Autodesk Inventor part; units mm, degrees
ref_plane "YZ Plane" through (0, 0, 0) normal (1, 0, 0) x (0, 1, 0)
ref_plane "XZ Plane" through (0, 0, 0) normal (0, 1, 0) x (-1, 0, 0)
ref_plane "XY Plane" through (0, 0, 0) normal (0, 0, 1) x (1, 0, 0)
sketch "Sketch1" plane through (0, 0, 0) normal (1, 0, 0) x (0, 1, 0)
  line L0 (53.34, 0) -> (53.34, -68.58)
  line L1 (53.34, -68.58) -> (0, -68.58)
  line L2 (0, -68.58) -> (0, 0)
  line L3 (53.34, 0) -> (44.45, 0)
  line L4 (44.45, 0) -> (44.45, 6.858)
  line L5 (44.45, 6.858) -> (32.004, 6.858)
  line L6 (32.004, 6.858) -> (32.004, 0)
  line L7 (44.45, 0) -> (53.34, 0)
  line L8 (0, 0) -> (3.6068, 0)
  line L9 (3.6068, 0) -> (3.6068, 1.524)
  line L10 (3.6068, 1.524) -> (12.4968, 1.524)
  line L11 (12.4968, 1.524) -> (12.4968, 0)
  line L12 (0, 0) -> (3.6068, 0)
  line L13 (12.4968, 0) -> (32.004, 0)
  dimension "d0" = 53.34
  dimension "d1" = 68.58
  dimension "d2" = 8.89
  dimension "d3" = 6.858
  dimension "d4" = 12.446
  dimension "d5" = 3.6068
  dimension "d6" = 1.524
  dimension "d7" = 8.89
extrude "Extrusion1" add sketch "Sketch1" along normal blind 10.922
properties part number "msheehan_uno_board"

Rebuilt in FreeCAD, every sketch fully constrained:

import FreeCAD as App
import Part
import Sketcher
Q = App.Units.Quantity

doc = App.newDocument("Part")
body = doc.addObject("PartDesign::Body", "Body")

# Sketch on YZ plane
sketch1 = body.newObject("Sketcher::SketchObject", "Sketch")
sketch1.AttachmentSupport = (doc.getObject("YZ_Plane"), [""])
sketch1.MapMode = "FlatFace"
sketch1.addGeometry([
    Part.LineSegment(App.Vector(53.3, -68.6, 0), App.Vector(53.3, 0, 0)),  # 0
    Part.LineSegment(App.Vector(53.3, 0, 0), App.Vector(44.5, 0, 0)),  # 1
    Part.LineSegment(App.Vector(44.5, 0, 0), App.Vector(44.5, 6.9, 0)),  # 2
    Part.LineSegment(App.Vector(44.5, 6.9, 0), App.Vector(32, 6.9, 0)),  # 3
    Part.LineSegment(App.Vector(32, 6.9, 0), App.Vector(32, 0, 0)),  # 4
    Part.LineSegment(App.Vector(32, 0, 0), App.Vector(12.5, 0, 0)),  # 5
    Part.LineSegment(App.Vector(12.5, 0, 0), App.Vector(12.5, 1.5, 0)),  # 6
    Part.LineSegment(App.Vector(12.5, 1.5, 0), App.Vector(3.6, 1.5, 0)),  # 7
    Part.LineSegment(App.Vector(3.6, 1.5, 0), App.Vector(3.6, 0, 0)),  # 8
    Part.LineSegment(App.Vector(3.6, 0, 0), App.Vector(0, 0, 0)),  # 9
    Part.LineSegment(App.Vector(0, 0, 0), App.Vector(0, -68.6, 0)),  # 10
    Part.LineSegment(App.Vector(0, -68.6, 0), App.Vector(53.3, -68.6, 0)),  # 11
], False)
sketch1.addConstraint([
    Sketcher.Constraint("Coincident", 0, 2, 1, 1),
    Sketcher.Constraint("Coincident", 1, 2, 2, 1),
    Sketcher.Constraint("Coincident", 2, 2, 3, 1),
    Sketcher.Constraint("Coincident", 3, 2, 4, 1),
    Sketcher.Constraint("Coincident", 4, 2, 5, 1),
    Sketcher.Constraint("Coincident", 5, 2, 6, 1),
    Sketcher.Constraint("Coincident", 6, 2, 7, 1),
    Sketcher.Constraint("Coincident", 7, 2, 8, 1),
    Sketcher.Constraint("Coincident", 8, 2, 9, 1),
    Sketcher.Constraint("Coincident", 9, 2, 10, 1),
    Sketcher.Constraint("Coincident", 10, 2, 11, 1),
    Sketcher.Constraint("Coincident", 11, 2, 0, 1),
    Sketcher.Constraint("Vertical", 0),
    Sketcher.Constraint("Horizontal", 1),
    Sketcher.Constraint("Vertical", 2),
    Sketcher.Constraint("Horizontal", 3),
    Sketcher.Constraint("Vertical", 4),
    Sketcher.Constraint("Horizontal", 5),
    Sketcher.Constraint("Vertical", 6),
    Sketcher.Constraint("Horizontal", 7),
    Sketcher.Constraint("Vertical", 8),
    Sketcher.Constraint("Horizontal", 9),
    Sketcher.Constraint("Vertical", 10),
    Sketcher.Constraint("Horizontal", 11),
    Sketcher.Constraint("Coincident", 9, 2, -1, 1),
    Sketcher.Constraint("PointOnObject", 0, 2, -1),
    Sketcher.Constraint("PointOnObject", 4, 2, -1),
    Sketcher.Constraint("Equal", 1, 7),
    Sketcher.Constraint("DistanceX", 11, 1, 11, 2, Q("2.1 in")),
    Sketcher.Constraint("DistanceY", 0, 1, 0, 2, Q("2.7 in")),
    Sketcher.Constraint("DistanceX", 1, 2, 1, 1, Q("0.35 in")),
    Sketcher.Constraint("DistanceX", 3, 2, 3, 1, Q("0.49 in")),
    Sketcher.Constraint("DistanceY", 2, 1, 2, 2, Q("0.27 in")),
    Sketcher.Constraint("DistanceY", 6, 1, 6, 2, Q("0.06 in")),
    Sketcher.Constraint("DistanceX", 9, 2, 9, 1, Q("0.142 in")),
])
pad1 = body.newObject("PartDesign::Pad", "Pad")
pad1.Profile = sketch1
pad1.Length = Q("0.43 in")

doc.recompute()
